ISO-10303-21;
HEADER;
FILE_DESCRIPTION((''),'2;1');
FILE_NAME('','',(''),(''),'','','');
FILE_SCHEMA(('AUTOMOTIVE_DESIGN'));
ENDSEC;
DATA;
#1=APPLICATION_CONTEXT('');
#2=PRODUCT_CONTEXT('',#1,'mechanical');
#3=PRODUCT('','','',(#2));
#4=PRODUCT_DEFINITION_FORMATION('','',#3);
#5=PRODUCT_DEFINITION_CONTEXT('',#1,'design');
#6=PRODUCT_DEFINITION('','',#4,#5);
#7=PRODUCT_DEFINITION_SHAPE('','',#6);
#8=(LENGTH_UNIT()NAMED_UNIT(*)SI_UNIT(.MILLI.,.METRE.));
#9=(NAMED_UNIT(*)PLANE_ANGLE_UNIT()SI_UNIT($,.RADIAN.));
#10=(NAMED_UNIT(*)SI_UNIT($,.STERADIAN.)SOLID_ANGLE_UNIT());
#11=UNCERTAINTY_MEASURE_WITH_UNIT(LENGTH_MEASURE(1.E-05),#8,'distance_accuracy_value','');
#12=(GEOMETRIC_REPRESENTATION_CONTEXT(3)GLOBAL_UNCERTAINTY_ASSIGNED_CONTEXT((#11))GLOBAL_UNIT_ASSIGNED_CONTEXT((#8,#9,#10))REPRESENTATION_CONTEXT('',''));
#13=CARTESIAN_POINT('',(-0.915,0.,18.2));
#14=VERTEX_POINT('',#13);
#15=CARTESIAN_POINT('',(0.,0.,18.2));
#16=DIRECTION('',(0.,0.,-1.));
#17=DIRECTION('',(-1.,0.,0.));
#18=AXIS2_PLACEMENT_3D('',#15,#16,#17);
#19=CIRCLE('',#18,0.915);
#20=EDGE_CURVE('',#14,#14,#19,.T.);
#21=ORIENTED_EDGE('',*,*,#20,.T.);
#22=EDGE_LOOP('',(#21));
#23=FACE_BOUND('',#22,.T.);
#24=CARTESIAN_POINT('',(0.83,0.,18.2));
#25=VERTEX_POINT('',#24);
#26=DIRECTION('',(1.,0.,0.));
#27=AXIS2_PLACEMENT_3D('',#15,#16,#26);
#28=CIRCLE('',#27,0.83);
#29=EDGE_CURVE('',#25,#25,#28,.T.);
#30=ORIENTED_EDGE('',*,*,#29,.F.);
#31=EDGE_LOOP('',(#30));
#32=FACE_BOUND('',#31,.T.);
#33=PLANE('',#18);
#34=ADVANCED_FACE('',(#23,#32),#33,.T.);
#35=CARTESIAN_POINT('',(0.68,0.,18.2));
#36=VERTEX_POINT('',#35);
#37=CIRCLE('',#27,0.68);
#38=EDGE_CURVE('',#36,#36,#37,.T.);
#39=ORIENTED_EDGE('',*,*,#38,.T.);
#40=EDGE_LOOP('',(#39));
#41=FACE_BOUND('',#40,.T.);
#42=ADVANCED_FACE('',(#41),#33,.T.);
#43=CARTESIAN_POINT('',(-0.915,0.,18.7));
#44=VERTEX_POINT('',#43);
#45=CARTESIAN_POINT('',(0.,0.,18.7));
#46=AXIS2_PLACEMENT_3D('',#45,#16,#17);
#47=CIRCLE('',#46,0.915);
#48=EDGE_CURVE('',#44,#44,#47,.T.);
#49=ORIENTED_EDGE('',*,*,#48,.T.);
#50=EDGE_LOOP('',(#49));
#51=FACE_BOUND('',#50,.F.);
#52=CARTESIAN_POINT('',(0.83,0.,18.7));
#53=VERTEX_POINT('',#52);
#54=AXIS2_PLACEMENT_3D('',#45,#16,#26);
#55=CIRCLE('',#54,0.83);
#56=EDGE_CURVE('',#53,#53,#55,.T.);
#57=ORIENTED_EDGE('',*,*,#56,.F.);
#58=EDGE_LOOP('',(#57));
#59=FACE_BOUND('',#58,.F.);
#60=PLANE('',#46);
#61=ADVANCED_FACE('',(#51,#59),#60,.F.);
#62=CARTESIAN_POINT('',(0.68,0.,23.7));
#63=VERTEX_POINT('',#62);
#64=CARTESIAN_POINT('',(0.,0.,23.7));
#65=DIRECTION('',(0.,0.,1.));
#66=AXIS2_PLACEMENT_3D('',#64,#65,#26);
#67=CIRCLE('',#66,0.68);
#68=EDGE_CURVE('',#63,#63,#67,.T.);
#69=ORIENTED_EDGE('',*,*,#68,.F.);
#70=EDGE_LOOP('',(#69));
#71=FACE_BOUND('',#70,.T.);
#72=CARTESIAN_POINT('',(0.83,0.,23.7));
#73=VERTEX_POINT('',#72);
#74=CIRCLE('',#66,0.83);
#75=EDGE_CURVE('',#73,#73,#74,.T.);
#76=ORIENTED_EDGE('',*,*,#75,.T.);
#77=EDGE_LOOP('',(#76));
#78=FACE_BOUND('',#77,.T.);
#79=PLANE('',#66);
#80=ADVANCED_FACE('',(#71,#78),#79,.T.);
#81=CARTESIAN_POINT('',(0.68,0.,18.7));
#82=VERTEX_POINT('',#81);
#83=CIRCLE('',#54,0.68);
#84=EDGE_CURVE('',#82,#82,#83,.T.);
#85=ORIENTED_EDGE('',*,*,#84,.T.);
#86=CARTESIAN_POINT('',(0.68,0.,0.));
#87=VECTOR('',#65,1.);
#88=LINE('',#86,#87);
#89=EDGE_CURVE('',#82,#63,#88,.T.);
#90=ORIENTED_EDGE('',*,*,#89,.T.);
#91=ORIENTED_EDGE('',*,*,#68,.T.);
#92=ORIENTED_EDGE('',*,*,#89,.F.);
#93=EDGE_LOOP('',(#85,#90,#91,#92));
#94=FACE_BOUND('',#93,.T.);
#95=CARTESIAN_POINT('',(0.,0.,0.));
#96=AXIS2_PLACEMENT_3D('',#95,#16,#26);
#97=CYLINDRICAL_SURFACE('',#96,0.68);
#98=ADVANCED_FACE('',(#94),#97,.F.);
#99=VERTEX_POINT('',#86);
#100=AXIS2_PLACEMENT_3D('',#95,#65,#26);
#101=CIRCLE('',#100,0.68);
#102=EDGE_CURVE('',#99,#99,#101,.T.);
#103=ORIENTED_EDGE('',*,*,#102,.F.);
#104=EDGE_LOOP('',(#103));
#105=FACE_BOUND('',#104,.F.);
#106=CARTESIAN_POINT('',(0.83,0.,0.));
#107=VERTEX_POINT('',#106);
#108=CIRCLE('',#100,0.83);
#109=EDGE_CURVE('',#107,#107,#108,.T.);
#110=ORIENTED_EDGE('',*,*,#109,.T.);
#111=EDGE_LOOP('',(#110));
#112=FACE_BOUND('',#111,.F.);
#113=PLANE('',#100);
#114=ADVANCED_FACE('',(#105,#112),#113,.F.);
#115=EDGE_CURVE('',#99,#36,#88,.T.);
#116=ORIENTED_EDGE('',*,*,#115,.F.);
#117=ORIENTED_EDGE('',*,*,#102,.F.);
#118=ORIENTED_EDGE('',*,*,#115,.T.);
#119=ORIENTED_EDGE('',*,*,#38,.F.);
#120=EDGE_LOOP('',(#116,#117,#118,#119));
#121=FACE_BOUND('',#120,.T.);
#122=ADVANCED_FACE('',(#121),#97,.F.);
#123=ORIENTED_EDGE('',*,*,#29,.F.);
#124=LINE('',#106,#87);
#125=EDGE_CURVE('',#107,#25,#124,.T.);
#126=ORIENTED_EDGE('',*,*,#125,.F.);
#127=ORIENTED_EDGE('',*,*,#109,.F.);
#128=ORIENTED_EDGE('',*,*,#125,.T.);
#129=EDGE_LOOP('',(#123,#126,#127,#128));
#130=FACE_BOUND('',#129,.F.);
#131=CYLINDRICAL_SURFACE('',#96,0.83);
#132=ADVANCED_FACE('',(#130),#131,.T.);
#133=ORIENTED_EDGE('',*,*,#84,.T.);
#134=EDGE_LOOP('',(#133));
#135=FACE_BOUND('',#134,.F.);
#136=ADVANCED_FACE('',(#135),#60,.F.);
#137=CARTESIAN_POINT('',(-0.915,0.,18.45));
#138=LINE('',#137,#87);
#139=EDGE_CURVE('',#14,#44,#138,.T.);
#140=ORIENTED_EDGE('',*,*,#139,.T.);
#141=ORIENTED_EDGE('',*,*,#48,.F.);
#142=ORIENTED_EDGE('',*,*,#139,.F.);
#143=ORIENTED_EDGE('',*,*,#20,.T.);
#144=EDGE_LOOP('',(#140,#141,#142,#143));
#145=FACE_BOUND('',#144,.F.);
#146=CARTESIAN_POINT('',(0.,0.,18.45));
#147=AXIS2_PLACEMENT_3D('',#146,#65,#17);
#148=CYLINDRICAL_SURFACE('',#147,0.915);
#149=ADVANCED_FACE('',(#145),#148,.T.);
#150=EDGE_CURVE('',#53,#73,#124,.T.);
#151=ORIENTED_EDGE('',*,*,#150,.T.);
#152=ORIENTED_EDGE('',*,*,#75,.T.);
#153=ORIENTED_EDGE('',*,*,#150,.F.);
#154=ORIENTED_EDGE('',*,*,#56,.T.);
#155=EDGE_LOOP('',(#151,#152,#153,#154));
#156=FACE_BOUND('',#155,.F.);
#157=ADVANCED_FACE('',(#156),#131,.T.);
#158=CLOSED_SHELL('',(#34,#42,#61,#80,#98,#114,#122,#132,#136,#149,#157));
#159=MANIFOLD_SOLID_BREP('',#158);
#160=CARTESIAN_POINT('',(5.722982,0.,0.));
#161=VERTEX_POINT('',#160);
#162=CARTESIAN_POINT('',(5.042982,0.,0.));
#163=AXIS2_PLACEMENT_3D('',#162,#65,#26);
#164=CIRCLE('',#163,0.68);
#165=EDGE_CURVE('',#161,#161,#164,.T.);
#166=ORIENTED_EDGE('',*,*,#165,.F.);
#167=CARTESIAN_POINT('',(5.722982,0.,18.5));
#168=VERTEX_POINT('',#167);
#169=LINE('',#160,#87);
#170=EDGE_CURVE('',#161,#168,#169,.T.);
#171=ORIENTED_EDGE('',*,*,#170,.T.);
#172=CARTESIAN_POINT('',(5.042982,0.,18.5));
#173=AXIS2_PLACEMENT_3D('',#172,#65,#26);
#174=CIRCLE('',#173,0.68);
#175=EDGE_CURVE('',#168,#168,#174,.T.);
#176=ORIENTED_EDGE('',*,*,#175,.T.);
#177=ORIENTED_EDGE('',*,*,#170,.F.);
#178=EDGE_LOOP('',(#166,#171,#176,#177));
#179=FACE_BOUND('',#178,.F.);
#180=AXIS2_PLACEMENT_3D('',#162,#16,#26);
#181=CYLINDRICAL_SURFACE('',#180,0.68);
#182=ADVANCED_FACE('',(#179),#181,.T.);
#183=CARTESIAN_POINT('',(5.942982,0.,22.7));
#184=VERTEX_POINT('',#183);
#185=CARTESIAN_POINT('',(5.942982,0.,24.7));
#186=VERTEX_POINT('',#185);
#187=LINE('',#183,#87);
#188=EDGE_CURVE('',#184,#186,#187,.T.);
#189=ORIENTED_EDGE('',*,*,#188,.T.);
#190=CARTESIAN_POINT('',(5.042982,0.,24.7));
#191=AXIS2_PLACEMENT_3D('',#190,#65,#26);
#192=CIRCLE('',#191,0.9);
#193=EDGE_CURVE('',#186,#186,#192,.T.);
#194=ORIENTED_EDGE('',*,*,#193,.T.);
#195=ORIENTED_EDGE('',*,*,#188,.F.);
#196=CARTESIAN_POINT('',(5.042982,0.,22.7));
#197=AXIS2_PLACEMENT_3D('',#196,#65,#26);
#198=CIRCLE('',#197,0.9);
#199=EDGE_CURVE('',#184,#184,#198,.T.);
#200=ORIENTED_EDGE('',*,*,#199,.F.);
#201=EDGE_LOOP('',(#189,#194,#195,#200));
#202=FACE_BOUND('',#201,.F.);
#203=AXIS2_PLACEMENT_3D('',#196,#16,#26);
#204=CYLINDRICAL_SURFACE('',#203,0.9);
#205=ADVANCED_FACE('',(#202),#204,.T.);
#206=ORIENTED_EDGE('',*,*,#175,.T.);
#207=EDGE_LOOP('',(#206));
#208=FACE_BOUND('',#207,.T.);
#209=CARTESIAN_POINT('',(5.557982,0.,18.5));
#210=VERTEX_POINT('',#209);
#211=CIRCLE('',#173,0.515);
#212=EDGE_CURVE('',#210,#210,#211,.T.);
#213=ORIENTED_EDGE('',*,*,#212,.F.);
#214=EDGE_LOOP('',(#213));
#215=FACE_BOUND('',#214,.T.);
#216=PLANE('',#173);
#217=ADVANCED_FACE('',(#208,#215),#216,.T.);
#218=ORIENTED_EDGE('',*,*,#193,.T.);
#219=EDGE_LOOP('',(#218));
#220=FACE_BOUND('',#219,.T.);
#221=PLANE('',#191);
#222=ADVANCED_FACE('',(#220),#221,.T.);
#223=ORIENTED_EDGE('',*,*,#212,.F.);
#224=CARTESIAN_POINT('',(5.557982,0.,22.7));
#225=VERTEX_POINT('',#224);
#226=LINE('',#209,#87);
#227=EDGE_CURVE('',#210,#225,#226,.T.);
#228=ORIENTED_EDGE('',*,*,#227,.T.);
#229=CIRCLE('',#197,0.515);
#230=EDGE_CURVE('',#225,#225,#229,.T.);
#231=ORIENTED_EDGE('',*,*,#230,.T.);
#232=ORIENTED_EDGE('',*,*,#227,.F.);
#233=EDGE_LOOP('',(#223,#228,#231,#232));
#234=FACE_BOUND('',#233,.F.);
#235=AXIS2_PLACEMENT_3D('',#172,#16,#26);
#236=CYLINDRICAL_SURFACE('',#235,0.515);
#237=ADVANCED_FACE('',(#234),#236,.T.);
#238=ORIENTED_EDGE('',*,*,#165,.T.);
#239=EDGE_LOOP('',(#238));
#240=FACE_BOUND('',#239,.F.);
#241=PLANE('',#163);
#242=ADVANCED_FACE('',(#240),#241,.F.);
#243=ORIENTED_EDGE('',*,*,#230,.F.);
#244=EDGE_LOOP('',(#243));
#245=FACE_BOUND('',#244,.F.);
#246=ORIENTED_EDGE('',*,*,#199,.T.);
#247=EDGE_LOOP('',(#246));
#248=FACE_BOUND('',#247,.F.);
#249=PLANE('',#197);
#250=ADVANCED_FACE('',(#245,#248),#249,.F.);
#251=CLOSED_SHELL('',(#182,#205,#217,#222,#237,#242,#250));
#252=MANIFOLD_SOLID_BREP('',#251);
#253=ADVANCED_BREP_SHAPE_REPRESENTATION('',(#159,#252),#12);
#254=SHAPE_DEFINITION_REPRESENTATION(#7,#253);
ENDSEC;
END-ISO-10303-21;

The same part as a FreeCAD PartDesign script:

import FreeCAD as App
import Part
import Sketcher
from FreeCAD import Vector


def add_polygon(sketch, points):
    """Adds a closed chain of lines whose ends are joined by coincident constraints."""
    first, n = sketch.GeometryCount, len(points)
    for a, b in zip(points, points[1:] + points[:1]):
        sketch.addGeometry(Part.LineSegment(App.Vector(*a, 0), App.Vector(*b, 0)), False)
    for i in range(n):
        sketch.addConstraint(Sketcher.Constraint("Coincident", first + i, 2, first + (i + 1) % n, 1))

doc = App.newDocument("Part")
body = doc.addObject("PartDesign::Body", "Body")

# Sketch on XY plane
sketch1 = body.newObject("Sketcher::SketchObject", "Sketch")
sketch1.AttachmentSupport = (doc.getObject("XY_Plane"), [""])
sketch1.MapMode = "FlatFace"
sketch1.addGeometry(Part.Circle(Vector(0, 0, 0), Vector(0, 0, 1), 0.8), False)
sketch1.addGeometry(Part.Circle(Vector(0, 0, 0), Vector(0, 0, 1), 0.7), False)
sketch1.addConstraint(Sketcher.Constraint("Coincident", 0, 3, -1, 1))
sketch1.addConstraint(Sketcher.Constraint("Coincident", 1, 3, -1, 1))
sketch1.addConstraint(Sketcher.Constraint("Diameter", 0, 1.66))
sketch1.addConstraint(Sketcher.Constraint("Diameter", 1, 1.36))
pad1 = body.newObject("PartDesign::Pad", "Pad")
pad1.Profile = sketch1
pad1.Length = 23.7

# Sketch on XZ plane
sketch2 = body.newObject("Sketcher::SketchObject", "Sketch001")
sketch2.AttachmentSupport = (doc.getObject("XZ_Plane"), [""])
sketch2.MapMode = "FlatFace"
add_polygon(sketch2, [(-0.9, 18.7), (-0.9, 18.2), (0, 18.2), (0, 18.7)])  # lines 0-3
sketch2.addConstraint(Sketcher.Constraint("Vertical", 0))
sketch2.addConstraint(Sketcher.Constraint("Horizontal", 1))
sketch2.addConstraint(Sketcher.Constraint("Vertical", 2))
sketch2.addConstraint(Sketcher.Constraint("Horizontal", 3))
sketch2.addConstraint(Sketcher.Constraint("PointOnObject", 1, 2, -2))
sketch2.addConstraint(Sketcher.Constraint("DistanceY", 0, 2, 0, 1, 0.5))
sketch2.addConstraint(Sketcher.Constraint("DistanceY", -1, 1, 0, 2, 18.2))
sketch2.addConstraint(Sketcher.Constraint("DistanceX", 1, 1, 1, 2, 0.915))
revolution = body.newObject("PartDesign::Revolution", "Revolution")
revolution.Profile = sketch2
revolution.ReferenceAxis = (sketch2, ["V_Axis"])
revolution.Angle = 360
body2 = doc.addObject("PartDesign::Body", "Body001")

# Sketch on XY plane
sketch3 = body2.newObject("Sketcher::SketchObject", "Sketch002")
sketch3.AttachmentSupport = (doc.getObject("XY_Plane001"), [""])
sketch3.MapMode = "FlatFace"
sketch3.addGeometry(Part.Circle(Vector(5, 0, 0), Vector(0, 0, 1), 0.7), False)
sketch3.addConstraint(Sketcher.Constraint("PointOnObject", 0, 3, -1))
sketch3.addConstraint(Sketcher.Constraint("Diameter", 0, 1.36))
sketch3.addConstraint(Sketcher.Constraint("DistanceX", -1, 1, 0, 3, 5.042982))
pad2 = body2.newObject("PartDesign::Pad", "Pad001")
pad2.Profile = sketch3
pad2.Length = 18.5

# Sketch on XY plane
sketch4 = body2.newObject("Sketcher::SketchObject", "Sketch003")
sketch4.AttachmentSupport = (doc.getObject("XY_Plane001"), [""])
sketch4.MapMode = "FlatFace"
sketch4.AttachmentOffset = App.Placement(Vector(0, 0, 18.5), App.Rotation())
sketch4.addGeometry(Part.Circle(Vector(5, 0, 0), Vector(0, 0, 1), 0.5), False)
sketch4.addConstraint(Sketcher.Constraint("PointOnObject", 0, 3, -1))
sketch4.addConstraint(Sketcher.Constraint("Diameter", 0, 1.03))
sketch4.addConstraint(Sketcher.Constraint("DistanceX", -1, 1, 0, 3, 5.042982))
pad3 = body2.newObject("PartDesign::Pad", "Pad002")
pad3.Profile = sketch4
pad3.Length = 4.2

# Sketch on XY plane
sketch5 = body2.newObject("Sketcher::SketchObject", "Sketch004")
sketch5.AttachmentSupport = (doc.getObject("XY_Plane001"), [""])
sketch5.MapMode = "FlatFace"
sketch5.AttachmentOffset = App.Placement(Vector(0, 0, 22.7), App.Rotation())
sketch5.addGeometry(Part.Circle(Vector(5, 0, 0), Vector(0, 0, 1), 0.9), False)
sketch5.addConstraint(Sketcher.Constraint("PointOnObject", 0, 3, -1))
sketch5.addConstraint(Sketcher.Constraint("Diameter", 0, 1.8))
sketch5.addConstraint(Sketcher.Constraint("DistanceX", -1, 1, 0, 3, 5.042982))
pad4 = body2.newObject("PartDesign::Pad", "Pad003")
pad4.Profile = sketch5
pad4.Length = 2

doc.recompute()
